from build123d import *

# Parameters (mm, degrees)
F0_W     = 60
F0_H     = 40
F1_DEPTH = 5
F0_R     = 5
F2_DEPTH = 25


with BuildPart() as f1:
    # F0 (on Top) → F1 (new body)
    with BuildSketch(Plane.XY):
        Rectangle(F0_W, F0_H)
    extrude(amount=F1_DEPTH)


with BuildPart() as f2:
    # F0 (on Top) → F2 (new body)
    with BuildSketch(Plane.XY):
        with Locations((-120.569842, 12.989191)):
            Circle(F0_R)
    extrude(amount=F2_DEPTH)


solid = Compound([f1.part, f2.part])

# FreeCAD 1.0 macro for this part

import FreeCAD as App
import Part
import Sketcher
from FreeCAD import Vector
Q = App.Units.Quantity


def add_polygon(sketch, points):
    """Adds a closed chain of lines whose ends are joined by coincident constraints."""
    first, n = sketch.GeometryCount, len(points)
    for a, b in zip(points, points[1:] + points[:1]):
        sketch.addGeometry(Part.LineSegment(App.Vector(*a, 0), App.Vector(*b, 0)), False)
    for i in range(n):
        sketch.addConstraint(Sketcher.Constraint("Coincident", first + i, 2, first + (i + 1) % n, 1))

doc = App.newDocument("Part")
body = doc.addObject("PartDesign::Body", "Body")

# Sketch on XY plane
sketch1 = doc.addObject("Sketcher::SketchObject", "Sketch")
body.addObject(sketch1)
sketch1.AttachmentSupport = (doc.XY_Plane, [""])
sketch1.MapMode = "FlatFace"
add_polygon(sketch1, [(-30, 20), (-30, -20), (30, -20), (30, 20)])  # lines 0-3
sketch1.addConstraint([
    Sketcher.Constraint("Vertical", 0),
    Sketcher.Constraint("Horizontal", 1),
    Sketcher.Constraint("Vertical", 2),
    Sketcher.Constraint("Horizontal", 3),
    Sketcher.Constraint("Symmetric", 0, 2, 2, 2, -1, 1),
    Sketcher.Constraint("DistanceX", 1, 1, 1, 2, Q("60 mm")),
    Sketcher.Constraint("DistanceY", 0, 2, 0, 1, Q("40 mm")),
])
pad1 = doc.addObject("PartDesign::Pad", "Pad")
body.addObject(pad1)
pad1.Profile = sketch1
pad1.Length = 5
body2 = doc.addObject("PartDesign::Body", "Body001")

# Sketch on XY plane
sketch2 = doc.addObject("Sketcher::SketchObject", "Sketch001")
body2.addObject(sketch2)
sketch2.AttachmentSupport = (doc.getObject("XY_Plane001"), [""])
sketch2.MapMode = "FlatFace"
sketch2.addGeometry(Part.Circle(Vector(-121, 13, 0), Vector(0, 0, 1), 5), False)
sketch2.addConstraint([
    Sketcher.Constraint("Diameter", 0, Q("10 mm")),
    Sketcher.Constraint("DistanceX", 0, 3, -1, 1, Q("120.569842 mm")),
    Sketcher.Constraint("DistanceY", -1, 1, 0, 3, Q("12.989191 mm")),
])
pad2 = doc.addObject("PartDesign::Pad", "Pad001")
body2.addObject(pad2)
pad2.Profile = sketch2
pad2.Length = 25

doc.recompute()
